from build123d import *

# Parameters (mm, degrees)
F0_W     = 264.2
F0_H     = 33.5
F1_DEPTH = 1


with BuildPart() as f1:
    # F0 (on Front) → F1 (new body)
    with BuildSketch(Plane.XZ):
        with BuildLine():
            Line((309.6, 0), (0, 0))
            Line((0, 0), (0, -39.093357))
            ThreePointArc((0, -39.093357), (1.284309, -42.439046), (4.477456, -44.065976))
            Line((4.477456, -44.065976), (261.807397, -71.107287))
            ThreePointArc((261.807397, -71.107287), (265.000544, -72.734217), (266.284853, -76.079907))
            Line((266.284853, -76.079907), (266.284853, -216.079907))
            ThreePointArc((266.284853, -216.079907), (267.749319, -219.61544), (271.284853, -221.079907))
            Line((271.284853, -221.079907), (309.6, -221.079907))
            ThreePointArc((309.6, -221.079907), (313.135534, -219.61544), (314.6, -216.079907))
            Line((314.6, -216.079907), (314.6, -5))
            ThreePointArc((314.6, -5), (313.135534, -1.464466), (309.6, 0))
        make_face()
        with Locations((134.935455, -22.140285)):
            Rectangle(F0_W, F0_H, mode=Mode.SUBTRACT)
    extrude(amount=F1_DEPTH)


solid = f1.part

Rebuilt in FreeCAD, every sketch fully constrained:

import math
import FreeCAD as App
import Part
import Sketcher
from FreeCAD import Vector
Q = App.Units.Quantity

doc = App.newDocument("Part")
body = doc.addObject("PartDesign::Body", "Body")

# Sketch on XZ plane
sketch1 = body.newObject("Sketcher::SketchObject", "Sketch")
sketch1.AttachmentSupport = (doc.getObject("XZ_Plane"), [""])
sketch1.MapMode = "FlatFace"
sketch1.addGeometry([
    Part.LineSegment(Vector(309.6, 0, 0), Vector(0, 0, 0)),  # 0
    Part.LineSegment(Vector(0, 0, 0), Vector(0, -39.093357, 0)),  # 1
    Part.ArcOfCircle(Part.Circle(Vector(5, -39.093356, 0), Vector(0, 0, 1), 5), math.radians(-179.99999), math.radians(-95.998867)),  # 2
    Part.LineSegment(Vector(4.477456, -44.065976, 0), Vector(261.807397, -71.107287, 0)),  # 3
    Part.ArcOfCircle(Part.Circle(Vector(261.284853, -76.079907, 0), Vector(0, 0, 1), 5), math.radians(-0.000002), math.radians(84.001133)),  # 4
    Part.LineSegment(Vector(266.284853, -76.079907, 0), Vector(266.284853, -216.079907, 0)),  # 5
    Part.ArcOfCircle(Part.Circle(Vector(271.284854, -216.079906, 0), Vector(0, 0, 1), 5.000001), math.radians(-179.999984), math.radians(-90.000016)),  # 6
    Part.LineSegment(Vector(271.284853, -221.079907, 0), Vector(309.6, -221.079907, 0)),  # 7
    Part.ArcOfCircle(Part.Circle(Vector(309.599999, -216.079906, 0), Vector(0, 0, 1), 5.000001), math.radians(-89.999984), math.radians(-0.000016)),  # 8
    Part.LineSegment(Vector(314.6, -216.079907, 0), Vector(314.6, -5, 0)),  # 9
    Part.ArcOfCircle(Part.Circle(Vector(309.6, -5, 0), Vector(0, 0, 1), 5), math.radians(-0.000004), math.radians(90.000004)),  # 10
    Part.LineSegment(Vector(267.035455, -38.890285, 0), Vector(2.835455, -38.890285, 0)),  # 11
    Part.LineSegment(Vector(2.835455, -38.890285, 0), Vector(2.835455, -5.390285, 0)),  # 12
    Part.LineSegment(Vector(2.835455, -5.390285, 0), Vector(267.035455, -5.390285, 0)),  # 13
    Part.LineSegment(Vector(267.035455, -5.390285, 0), Vector(267.035455, -38.890285, 0)),  # 14
], False)
sketch1.addConstraint([
    Sketcher.Constraint("Coincident", 0, 2, 1, 1),
    Sketcher.Constraint("Coincident", 1, 2, 2, 1),
    Sketcher.Constraint("Coincident", 2, 2, 3, 1),
    Sketcher.Constraint("Coincident", 3, 2, 4, 2),
    Sketcher.Constraint("Coincident", 4, 1, 5, 1),
    Sketcher.Constraint("Coincident", 5, 2, 6, 1),
    Sketcher.Constraint("Coincident", 6, 2, 7, 1),
    Sketcher.Constraint("Coincident", 7, 2, 8, 1),
    Sketcher.Constraint("Coincident", 8, 2, 9, 1),
    Sketcher.Constraint("Coincident", 9, 2, 10, 1),
    Sketcher.Constraint("Coincident", 10, 2, 0, 1),
    Sketcher.Constraint("Coincident", 11, 2, 12, 1),
    Sketcher.Constraint("Coincident", 12, 2, 13, 1),
    Sketcher.Constraint("Coincident", 13, 2, 14, 1),
    Sketcher.Constraint("Coincident", 14, 2, 11, 1),
    Sketcher.Constraint("Horizontal", 0),
    Sketcher.Constraint("Vertical", 1),
    Sketcher.Constraint("Vertical", 5),
    Sketcher.Constraint("Horizontal", 7),
    Sketcher.Constraint("Vertical", 9),
    Sketcher.Constraint("Horizontal", 11),
    Sketcher.Constraint("Vertical", 12),
    Sketcher.Constraint("Horizontal", 13),
    Sketcher.Constraint("Vertical", 14),
    Sketcher.Constraint("Coincident", 0, 2, -1, 1),
    Sketcher.Constraint("Radius", 2, Q("5 mm")),
    Sketcher.Constraint("Radius", 4, Q("5 mm")),
    Sketcher.Constraint("Radius", 6, Q("5.000001 mm")),
    Sketcher.Constraint("Radius", 8, Q("5.000001 mm")),
    Sketcher.Constraint("Radius", 10, Q("5 mm")),
    Sketcher.Constraint("DistanceY", 5, 2, 5, 1, Q("140 mm")),
    Sketcher.Constraint("DistanceX", 0, 2, 0, 1, Q("309.6 mm")),
    Sketcher.Constraint("DistanceX", 11, 2, 11, 1, Q("264.2 mm")),
    Sketcher.Constraint("DistanceY", 12, 1, 12, 2, Q("33.5 mm")),
    Sketcher.Constraint("DistanceY", 9, 2, -1, 1, Q("5 mm")),
    Sketcher.Constraint("DistanceY", 6, 3, 4, 3, Q("139.999999 mm")),
    Sketcher.Constraint("DistanceY", 6, 3, 4, 1, Q("139.999999 mm")),
    Sketcher.Constraint("DistanceX", 5, 2, 6, 2, Q("5 mm")),
    Sketcher.Constraint("DistanceX", 7, 2, 8, 2, Q("5 mm")),
    Sketcher.Constraint("DistanceY", 7, 2, 8, 2, Q("5 mm")),
    Sketcher.Constraint("DistanceX", 10, 2, 9, 2, Q("5 mm")),
    Sketcher.Constraint("DistanceX", 11, 2, 2, 2, Q("1.642001 mm")),
    Sketcher.Constraint("DistanceY", 3, 2, 13, 2, Q("65.717002 mm")),
    Sketcher.Constraint("DistanceX", 3, 2, 8, 3, Q("47.792602 mm")),
    Sketcher.Constraint("DistanceX", 7, 1, 7, 2, Q("38.315147 mm")),
    Sketcher.Constraint("DistanceY", 1, 2, 1, 1, Q("39.093357 mm")),
    Sketcher.Constraint("DistanceY", 9, 1, 9, 2, Q("211.079907 mm")),
    Sketcher.Constraint("DistanceY", 4, 3, 2, 3, Q("36.986551 mm")),
    Sketcher.Constraint("DistanceY", 2, 2, 2, 3, Q("4.97262 mm")),
])
pad1 = body.newObject("PartDesign::Pad", "Pad")
pad1.Profile = sketch1
pad1.Length = 1

doc.recompute()
